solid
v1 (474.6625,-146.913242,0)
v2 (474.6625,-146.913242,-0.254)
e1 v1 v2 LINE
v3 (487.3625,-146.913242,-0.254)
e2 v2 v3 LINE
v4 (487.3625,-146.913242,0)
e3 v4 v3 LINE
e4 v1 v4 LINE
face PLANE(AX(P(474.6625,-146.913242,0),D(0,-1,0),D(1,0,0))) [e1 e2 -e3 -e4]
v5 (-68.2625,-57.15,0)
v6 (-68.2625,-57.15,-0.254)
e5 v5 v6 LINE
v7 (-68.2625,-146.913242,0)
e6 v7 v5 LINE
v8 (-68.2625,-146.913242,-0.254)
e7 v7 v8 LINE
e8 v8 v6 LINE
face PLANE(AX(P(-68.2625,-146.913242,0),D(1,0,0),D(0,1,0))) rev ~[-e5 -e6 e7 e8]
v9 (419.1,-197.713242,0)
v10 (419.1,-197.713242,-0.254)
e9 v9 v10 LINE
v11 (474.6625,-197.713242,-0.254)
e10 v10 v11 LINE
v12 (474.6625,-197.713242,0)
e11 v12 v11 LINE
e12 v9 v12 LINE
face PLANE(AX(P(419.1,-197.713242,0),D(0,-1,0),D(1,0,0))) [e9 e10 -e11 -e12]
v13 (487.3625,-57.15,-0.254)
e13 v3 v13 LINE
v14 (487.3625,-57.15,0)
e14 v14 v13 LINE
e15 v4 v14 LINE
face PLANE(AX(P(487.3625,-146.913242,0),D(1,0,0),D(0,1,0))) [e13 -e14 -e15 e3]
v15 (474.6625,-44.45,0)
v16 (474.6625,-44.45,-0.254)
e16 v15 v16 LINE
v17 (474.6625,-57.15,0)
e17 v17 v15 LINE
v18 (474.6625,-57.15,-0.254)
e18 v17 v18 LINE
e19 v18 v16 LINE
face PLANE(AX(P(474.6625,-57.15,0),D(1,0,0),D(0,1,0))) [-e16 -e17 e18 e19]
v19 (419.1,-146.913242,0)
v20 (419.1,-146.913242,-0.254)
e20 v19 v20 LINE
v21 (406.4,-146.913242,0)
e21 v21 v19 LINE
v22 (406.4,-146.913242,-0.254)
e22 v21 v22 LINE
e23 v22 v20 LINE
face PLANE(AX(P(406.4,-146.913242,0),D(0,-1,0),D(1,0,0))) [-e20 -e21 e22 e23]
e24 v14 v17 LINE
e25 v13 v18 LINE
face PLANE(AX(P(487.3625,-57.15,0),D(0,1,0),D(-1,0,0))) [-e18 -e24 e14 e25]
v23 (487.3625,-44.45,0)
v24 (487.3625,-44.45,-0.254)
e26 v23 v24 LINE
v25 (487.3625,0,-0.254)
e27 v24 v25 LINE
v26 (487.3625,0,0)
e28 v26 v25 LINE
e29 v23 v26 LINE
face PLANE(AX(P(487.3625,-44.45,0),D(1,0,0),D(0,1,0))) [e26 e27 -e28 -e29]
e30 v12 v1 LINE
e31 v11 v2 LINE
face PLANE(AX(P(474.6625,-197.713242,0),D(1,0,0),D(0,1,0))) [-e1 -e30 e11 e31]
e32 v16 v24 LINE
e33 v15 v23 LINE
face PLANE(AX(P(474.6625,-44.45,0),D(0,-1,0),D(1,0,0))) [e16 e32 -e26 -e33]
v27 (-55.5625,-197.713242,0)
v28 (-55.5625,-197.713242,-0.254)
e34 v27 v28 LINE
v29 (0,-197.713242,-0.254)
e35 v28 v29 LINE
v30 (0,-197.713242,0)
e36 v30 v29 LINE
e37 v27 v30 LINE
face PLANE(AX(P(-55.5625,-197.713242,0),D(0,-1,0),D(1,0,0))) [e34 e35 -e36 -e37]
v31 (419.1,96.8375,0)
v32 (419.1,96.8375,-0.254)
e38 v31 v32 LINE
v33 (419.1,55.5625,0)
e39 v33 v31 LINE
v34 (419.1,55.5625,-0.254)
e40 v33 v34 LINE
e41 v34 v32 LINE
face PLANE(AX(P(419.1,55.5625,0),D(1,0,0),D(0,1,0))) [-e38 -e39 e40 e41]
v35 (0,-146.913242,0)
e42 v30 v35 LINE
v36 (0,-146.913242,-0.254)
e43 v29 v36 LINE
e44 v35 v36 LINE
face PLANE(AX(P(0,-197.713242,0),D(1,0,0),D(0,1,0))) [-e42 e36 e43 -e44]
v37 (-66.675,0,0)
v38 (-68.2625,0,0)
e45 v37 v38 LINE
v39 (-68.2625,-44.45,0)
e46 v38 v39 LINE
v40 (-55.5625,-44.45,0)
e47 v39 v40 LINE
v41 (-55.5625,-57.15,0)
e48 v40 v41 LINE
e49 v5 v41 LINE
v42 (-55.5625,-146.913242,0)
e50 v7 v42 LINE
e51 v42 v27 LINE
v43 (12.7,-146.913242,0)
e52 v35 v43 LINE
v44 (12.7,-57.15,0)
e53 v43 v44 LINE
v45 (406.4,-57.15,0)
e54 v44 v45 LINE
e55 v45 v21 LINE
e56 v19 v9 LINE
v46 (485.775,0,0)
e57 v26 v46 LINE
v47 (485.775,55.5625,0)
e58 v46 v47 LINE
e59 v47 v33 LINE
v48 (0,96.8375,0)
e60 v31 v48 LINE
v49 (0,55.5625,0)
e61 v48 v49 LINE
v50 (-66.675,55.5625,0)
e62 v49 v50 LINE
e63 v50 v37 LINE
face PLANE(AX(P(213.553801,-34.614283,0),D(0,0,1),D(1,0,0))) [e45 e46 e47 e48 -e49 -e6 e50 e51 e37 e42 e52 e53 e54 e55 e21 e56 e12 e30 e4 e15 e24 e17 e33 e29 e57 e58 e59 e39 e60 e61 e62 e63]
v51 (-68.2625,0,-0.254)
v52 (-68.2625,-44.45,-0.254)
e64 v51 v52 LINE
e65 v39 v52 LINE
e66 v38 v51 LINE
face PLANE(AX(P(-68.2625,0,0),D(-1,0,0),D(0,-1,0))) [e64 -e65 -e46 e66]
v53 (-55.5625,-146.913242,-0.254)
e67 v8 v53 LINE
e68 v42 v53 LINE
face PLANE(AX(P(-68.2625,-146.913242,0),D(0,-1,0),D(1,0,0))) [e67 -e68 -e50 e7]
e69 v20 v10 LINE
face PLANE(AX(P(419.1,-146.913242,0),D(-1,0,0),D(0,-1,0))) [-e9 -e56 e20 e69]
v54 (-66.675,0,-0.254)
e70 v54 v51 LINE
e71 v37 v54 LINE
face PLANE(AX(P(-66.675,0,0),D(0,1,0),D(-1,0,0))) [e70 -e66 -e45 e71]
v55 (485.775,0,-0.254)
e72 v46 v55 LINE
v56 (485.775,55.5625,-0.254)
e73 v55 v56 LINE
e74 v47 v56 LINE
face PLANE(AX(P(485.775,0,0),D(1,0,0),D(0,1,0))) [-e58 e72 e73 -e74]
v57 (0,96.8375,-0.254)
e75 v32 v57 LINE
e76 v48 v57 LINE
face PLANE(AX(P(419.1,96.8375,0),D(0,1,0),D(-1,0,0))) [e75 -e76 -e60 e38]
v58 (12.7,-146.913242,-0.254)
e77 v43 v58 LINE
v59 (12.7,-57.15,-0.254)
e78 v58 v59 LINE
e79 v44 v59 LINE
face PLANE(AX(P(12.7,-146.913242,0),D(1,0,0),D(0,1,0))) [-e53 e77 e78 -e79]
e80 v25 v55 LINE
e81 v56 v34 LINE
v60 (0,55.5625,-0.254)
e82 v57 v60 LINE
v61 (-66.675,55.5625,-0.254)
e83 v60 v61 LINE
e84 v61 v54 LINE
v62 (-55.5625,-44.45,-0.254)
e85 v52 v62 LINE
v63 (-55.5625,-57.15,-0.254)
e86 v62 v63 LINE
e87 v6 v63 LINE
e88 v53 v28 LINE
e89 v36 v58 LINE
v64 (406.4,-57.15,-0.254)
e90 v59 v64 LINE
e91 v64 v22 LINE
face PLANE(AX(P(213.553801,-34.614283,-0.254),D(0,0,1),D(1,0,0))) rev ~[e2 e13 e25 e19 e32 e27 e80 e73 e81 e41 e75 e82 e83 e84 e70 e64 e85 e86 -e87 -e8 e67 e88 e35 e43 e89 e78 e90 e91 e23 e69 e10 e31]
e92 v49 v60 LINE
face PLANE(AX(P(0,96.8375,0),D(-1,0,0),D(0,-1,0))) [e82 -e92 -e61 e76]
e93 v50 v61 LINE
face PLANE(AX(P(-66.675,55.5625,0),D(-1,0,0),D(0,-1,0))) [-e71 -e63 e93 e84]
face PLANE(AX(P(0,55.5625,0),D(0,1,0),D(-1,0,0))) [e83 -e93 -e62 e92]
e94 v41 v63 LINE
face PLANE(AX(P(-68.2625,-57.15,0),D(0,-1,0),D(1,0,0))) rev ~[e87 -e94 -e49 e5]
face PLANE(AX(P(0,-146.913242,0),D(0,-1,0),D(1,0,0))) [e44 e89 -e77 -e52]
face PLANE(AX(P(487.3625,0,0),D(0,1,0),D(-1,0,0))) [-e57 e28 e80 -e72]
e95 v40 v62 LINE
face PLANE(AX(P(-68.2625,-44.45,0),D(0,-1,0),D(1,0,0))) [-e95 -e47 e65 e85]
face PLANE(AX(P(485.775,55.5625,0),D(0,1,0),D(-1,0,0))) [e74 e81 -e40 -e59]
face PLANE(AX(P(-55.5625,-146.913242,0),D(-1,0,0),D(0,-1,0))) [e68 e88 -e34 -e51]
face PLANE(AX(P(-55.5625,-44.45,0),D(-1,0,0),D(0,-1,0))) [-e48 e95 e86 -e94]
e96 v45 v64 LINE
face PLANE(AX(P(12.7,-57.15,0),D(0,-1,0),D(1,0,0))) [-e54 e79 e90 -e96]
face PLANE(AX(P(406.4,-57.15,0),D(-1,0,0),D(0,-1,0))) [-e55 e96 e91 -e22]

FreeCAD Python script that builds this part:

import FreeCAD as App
import Part
import Sketcher
Q = App.Units.Quantity


def add_polygon(sketch, points):
    """Adds a closed chain of lines whose ends are joined by coincident constraints."""
    first, n = sketch.GeometryCount, len(points)
    for a, b in zip(points, points[1:] + points[:1]):
        sketch.addGeometry(Part.LineSegment(App.Vector(*a, 0), App.Vector(*b, 0)), False)
    for i in range(n):
        sketch.addConstraint(Sketcher.Constraint("Coincident", first + i, 2, first + (i + 1) % n, 1))

doc = App.newDocument("Part")
body = doc.addObject("PartDesign::Body", "Body")

# Sketch on XY plane
sketch1 = body.newObject("Sketcher::SketchObject", "Sketch")
sketch1.AttachmentSupport = (doc.getObject("XY_Plane"), [""])
sketch1.MapMode = "FlatFace"
add_polygon(sketch1, [(12.7, -146.9), (12.7, -57.1), (406.4, -57.1), (406.4, -146.9), (419.1, -146.9), (419.1, -197.7), (474.7, -197.7), (474.7, -146.9), (487.4, -146.9), (487.4, -57.1), (474.7, -57.1), (474.7, -44.5), (487.4, -44.5), (487.4, 0), (485.8, 0), (485.8, 55.6), (419.1, 55.6), (419.1, 96.8), (0, 96.8), (0, 55.6), (-66.7, 55.6), (-66.7, 0), (-68.3, 0), (-68.3, -44.5), (-55.6, -44.5), (-55.6, -57.1), (-68.3, -57.1), (-68.3, -146.9), (-55.6, -146.9), (-55.6, -197.7), (0, -197.7), (0, -146.9)])  # lines 0-31
sketch1.addConstraint([
    Sketcher.Constraint("Vertical", 0),
    Sketcher.Constraint("Horizontal", 1),
    Sketcher.Constraint("Vertical", 2),
    Sketcher.Constraint("Horizontal", 3),
    Sketcher.Constraint("Vertical", 4),
    Sketcher.Constraint("Horizontal", 5),
    Sketcher.Constraint("Vertical", 6),
    Sketcher.Constraint("Horizontal", 7),
    Sketcher.Constraint("Vertical", 8),
    Sketcher.Constraint("Horizontal", 9),
    Sketcher.Constraint("Vertical", 10),
    Sketcher.Constraint("Horizontal", 11),
    Sketcher.Constraint("Vertical", 12),
    Sketcher.Constraint("Horizontal", 13),
    Sketcher.Constraint("Vertical", 14),
    Sketcher.Constraint("Horizontal", 15),
    Sketcher.Constraint("Vertical", 16),
    Sketcher.Constraint("Horizontal", 17),
    Sketcher.Constraint("Vertical", 18),
    Sketcher.Constraint("Horizontal", 19),
    Sketcher.Constraint("Vertical", 20),
    Sketcher.Constraint("Horizontal", 21),
    Sketcher.Constraint("Vertical", 22),
    Sketcher.Constraint("Horizontal", 23),
    Sketcher.Constraint("Vertical", 24),
    Sketcher.Constraint("Horizontal", 25),
    Sketcher.Constraint("Vertical", 26),
    Sketcher.Constraint("Horizontal", 27),
    Sketcher.Constraint("Vertical", 28),
    Sketcher.Constraint("Horizontal", 29),
    Sketcher.Constraint("Vertical", 30),
    Sketcher.Constraint("Horizontal", 31),
    Sketcher.Constraint("PointOnObject", 12, 2, -1),
    Sketcher.Constraint("PointOnObject", 17, 2, -2),
    Sketcher.Constraint("PointOnObject", 20, 2, -1),
    Sketcher.Constraint("PointOnObject", 29, 2, -2),
    Sketcher.Constraint("Horizontal", 3, 2, 6, 2),
    Sketcher.Constraint("Horizontal", 1, 2, 8, 2),
    Sketcher.Constraint("Horizontal", 15, 2, 18, 2),
    Sketcher.Constraint("Horizontal", 11, 2, 22, 2),
    Sketcher.Constraint("Horizontal", 9, 2, 24, 2),
    Sketcher.Constraint("Horizontal", 7, 2, 26, 2),
    Sketcher.Constraint("Horizontal", 5, 2, 28, 2),
    Sketcher.Constraint("Horizontal", 27, 2, 30, 2),
    Sketcher.Constraint("Vertical", 6, 2, 9, 2),
    Sketcher.Constraint("Vertical", 8, 2, 11, 2),
    Sketcher.Constraint("Vertical", 4, 2, 15, 2),
    Sketcher.Constraint("Vertical", 22, 2, 25, 2),
    Sketcher.Constraint("Vertical", 24, 2, 27, 2),
    Sketcher.Constraint("Equal", 3, 7),
    Sketcher.Constraint("Equal", 15, 19),
    Sketcher.Constraint("Equal", 13, 21),
    Sketcher.Constraint("Equal", 11, 23),
    Sketcher.Constraint("Equal", 27, 31),
    Sketcher.Constraint("Equal", 31, 10),
    Sketcher.Constraint("Equal", 29, 14),
    Sketcher.Constraint("DistanceY", 4, 2, 4, 1, Q("2 in")),
    Sketcher.Constraint("DistanceX", 1, 1, 1, 2, Q("15.5 in")),
    Sketcher.Constraint("DistanceX", 3, 1, 3, 2, Q("0.5 in")),
    Sketcher.Constraint("DistanceY", 12, 1, 12, 2, Q("1.75 in")),
    Sketcher.Constraint("DistanceX", 5, 1, 5, 2, Q("2.1875 in")),
    Sketcher.Constraint("DistanceX", 13, 2, 13, 1, Q("0.0625 in")),
    Sketcher.Constraint("DistanceY", 16, 1, 16, 2, Q("1.625 in")),
    Sketcher.Constraint("DistanceY", 0, 1, 0, 2, Q("89.763242 mm")),
])
pad1 = body.newObject("PartDesign::Pad", "Pad")
pad1.Profile = sketch1
pad1.Length = Q("0.01 in")
pad1.Reversed = True

doc.recompute()
